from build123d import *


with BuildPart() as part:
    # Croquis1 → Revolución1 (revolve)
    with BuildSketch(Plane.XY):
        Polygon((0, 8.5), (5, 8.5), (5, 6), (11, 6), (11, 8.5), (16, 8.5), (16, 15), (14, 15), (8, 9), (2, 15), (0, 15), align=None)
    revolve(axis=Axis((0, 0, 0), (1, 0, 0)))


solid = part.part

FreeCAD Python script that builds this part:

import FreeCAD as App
import Part
import Sketcher
from FreeCAD import Vector

doc = App.newDocument("Part")
params = doc.addObject("Spreadsheet::Sheet", "Params")
for row, (alias, value) in enumerate([
    ("sketch1_width", "5 mm"),
    ("sketch1_width2", "6 mm"),
    ("sketch1_width3", "2 mm"),
    ("sketch1_height", "2.5 mm"),
    ("sketch1_height2", "6.5 mm"),
    ("revolution_angle", "360 deg"),
], start=1):
    params.set(f"A{row}", alias)
    params.set(f"B{row}", "=" + value)
    params.setAlias(f"B{row}", alias)

body = doc.addObject("PartDesign::Body", "Body")

# Sketch on XY plane
sketch1 = body.newObject("Sketcher::SketchObject", "Sketch")
sketch1.AttachmentSupport = (doc.getObject("XY_Plane"), [""])
sketch1.MapMode = "FlatFace"
sketch1.addGeometry([
    Part.LineSegment(Vector(0, 8.5, 0), Vector(5, 8.5, 0)),  # 0
    Part.LineSegment(Vector(5, 8.5, 0), Vector(5, 6, 0)),  # 1
    Part.LineSegment(Vector(5, 6, 0), Vector(11, 6, 0)),  # 2
    Part.LineSegment(Vector(11, 6, 0), Vector(11, 8.5, 0)),  # 3
    Part.LineSegment(Vector(11, 8.5, 0), Vector(16, 8.5, 0)),  # 4
    Part.LineSegment(Vector(16, 8.5, 0), Vector(16, 15, 0)),  # 5
    Part.LineSegment(Vector(16, 15, 0), Vector(14, 15, 0)),  # 6
    Part.LineSegment(Vector(14, 15, 0), Vector(8, 9, 0)),  # 7
    Part.LineSegment(Vector(8, 9, 0), Vector(2, 15, 0)),  # 8
    Part.LineSegment(Vector(2, 15, 0), Vector(0, 15, 0)),  # 9
    Part.LineSegment(Vector(0, 15, 0), Vector(0, 8.5, 0)),  # 10
], False)
sketch1.addConstraint([
    Sketcher.Constraint("Coincident", 0, 2, 1, 1),
    Sketcher.Constraint("Coincident", 1, 2, 2, 1),
    Sketcher.Constraint("Coincident", 2, 2, 3, 1),
    Sketcher.Constraint("Coincident", 3, 2, 4, 1),
    Sketcher.Constraint("Coincident", 4, 2, 5, 1),
    Sketcher.Constraint("Coincident", 5, 2, 6, 1),
    Sketcher.Constraint("Coincident", 6, 2, 7, 1),
    Sketcher.Constraint("Coincident", 7, 2, 8, 1),
    Sketcher.Constraint("Coincident", 8, 2, 9, 1),
    Sketcher.Constraint("Coincident", 9, 2, 10, 1),
    Sketcher.Constraint("Coincident", 10, 2, 0, 1),
    Sketcher.Constraint("Horizontal", 0),
    Sketcher.Constraint("Vertical", 1),
    Sketcher.Constraint("Horizontal", 2),
    Sketcher.Constraint("Vertical", 3),
    Sketcher.Constraint("Horizontal", 4),
    Sketcher.Constraint("Vertical", 5),
    Sketcher.Constraint("Horizontal", 6),
    Sketcher.Constraint("Horizontal", 9),
    Sketcher.Constraint("Vertical", 10),
    Sketcher.Constraint("PointOnObject", 9, 2, -2),
    Sketcher.Constraint("Perpendicular", 7, 8),
    Sketcher.Constraint("Horizontal", 0, 2, 3, 2),
    Sketcher.Constraint("Horizontal", 6, 2, 8, 2),
    Sketcher.Constraint("Equal", 0, 4),
    Sketcher.Constraint("Equal", 6, 9),
    Sketcher.Constraint("Equal", 7, 8),
    Sketcher.Constraint("DistanceX", 0, 1, 0, 2, 5.0),
    Sketcher.Constraint("DistanceX", 2, 1, 2, 2, 6.0),
    Sketcher.Constraint("DistanceX", 6, 2, 6, 1, 2.0),
    Sketcher.Constraint("DistanceY", 1, 2, 1, 1, 2.5),
    Sketcher.Constraint("DistanceY", 5, 1, 5, 2, 6.5),
    Sketcher.Constraint("DistanceY", -1, 1, 1, 2, 6.0),
])
sketch1.setExpression("Constraints[27]", "Params.sketch1_width")
sketch1.setExpression("Constraints[28]", "Params.sketch1_width2")
sketch1.setExpression("Constraints[29]", "Params.sketch1_width3")
sketch1.setExpression("Constraints[30]", "Params.sketch1_height")
sketch1.setExpression("Constraints[31]", "Params.sketch1_height2")
revolution = body.newObject("PartDesign::Revolution", "Revolution")
revolution.Profile = sketch1
revolution.ReferenceAxis = (sketch1, ["H_Axis"])
revolution.setExpression("Angle", "Params.revolution_angle")

doc.recompute()
